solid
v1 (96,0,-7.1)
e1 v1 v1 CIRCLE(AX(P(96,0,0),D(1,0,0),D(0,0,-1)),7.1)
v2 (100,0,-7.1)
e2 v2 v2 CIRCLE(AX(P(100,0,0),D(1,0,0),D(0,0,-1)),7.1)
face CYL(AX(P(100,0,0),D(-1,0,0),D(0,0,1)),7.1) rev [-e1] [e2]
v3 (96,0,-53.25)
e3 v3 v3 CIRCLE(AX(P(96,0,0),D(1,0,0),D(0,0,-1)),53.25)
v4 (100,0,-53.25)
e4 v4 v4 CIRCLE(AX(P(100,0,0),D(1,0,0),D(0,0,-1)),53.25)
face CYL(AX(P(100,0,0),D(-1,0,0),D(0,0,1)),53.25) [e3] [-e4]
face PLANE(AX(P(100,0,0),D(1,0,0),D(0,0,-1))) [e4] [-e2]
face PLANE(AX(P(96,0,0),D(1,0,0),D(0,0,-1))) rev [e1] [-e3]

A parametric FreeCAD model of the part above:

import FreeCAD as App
import Part
import Sketcher

V = App.Vector

doc = App.newDocument("Part")
body = doc.addObject("PartDesign::Body", "Body")

# Sketch on YZ plane
sketch1 = doc.addObject("Sketcher::SketchObject", "Sketch")
body.addObject(sketch1)
sketch1.AttachmentSupport = (doc.YZ_Plane, [""])
sketch1.MapMode = "FlatFace"
sketch1.AttachmentOffset = App.Placement(V(0, 0, 96), App.Rotation())
sketch1.addGeometry(Part.Circle(V(0, 0, 0), V(0, 0, 1), 53.25), False)
sketch1.addGeometry(Part.Circle(V(0, 0, 0), V(0, 0, 1), 7.1), False)
sketch1.addConstraint(Sketcher.Constraint("Coincident", 0, 3, -1, 1))
sketch1.addConstraint(Sketcher.Constraint("Coincident", 1, 3, -1, 1))
sketch1.addConstraint(Sketcher.Constraint("Diameter", 0, 106.5))
sketch1.addConstraint(Sketcher.Constraint("Diameter", 1, 14.2))
pad1 = doc.addObject("PartDesign::Pad", "Pad")
body.addObject(pad1)
pad1.Profile = sketch1
pad1.Length = 4

doc.recompute()
